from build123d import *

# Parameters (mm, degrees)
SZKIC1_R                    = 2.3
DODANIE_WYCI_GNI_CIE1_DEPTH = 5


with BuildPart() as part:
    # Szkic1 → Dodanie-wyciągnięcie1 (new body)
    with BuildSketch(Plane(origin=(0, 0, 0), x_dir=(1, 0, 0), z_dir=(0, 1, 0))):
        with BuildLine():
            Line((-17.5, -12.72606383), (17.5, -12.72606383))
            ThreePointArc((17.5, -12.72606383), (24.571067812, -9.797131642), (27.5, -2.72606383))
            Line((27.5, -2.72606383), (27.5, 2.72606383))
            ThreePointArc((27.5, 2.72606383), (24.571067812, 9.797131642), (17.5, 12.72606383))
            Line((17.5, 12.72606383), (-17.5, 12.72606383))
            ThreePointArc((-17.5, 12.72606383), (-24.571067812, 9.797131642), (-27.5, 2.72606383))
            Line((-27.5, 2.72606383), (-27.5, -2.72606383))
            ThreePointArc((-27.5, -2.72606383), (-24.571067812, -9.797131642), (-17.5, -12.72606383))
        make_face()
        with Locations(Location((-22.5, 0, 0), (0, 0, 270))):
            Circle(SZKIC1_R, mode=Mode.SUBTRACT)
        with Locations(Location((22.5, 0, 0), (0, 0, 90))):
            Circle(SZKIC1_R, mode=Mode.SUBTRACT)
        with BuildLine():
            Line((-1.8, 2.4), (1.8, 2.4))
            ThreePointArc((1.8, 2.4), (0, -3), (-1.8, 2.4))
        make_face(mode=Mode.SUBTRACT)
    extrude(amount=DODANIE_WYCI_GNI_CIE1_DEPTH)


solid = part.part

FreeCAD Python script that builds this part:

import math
import FreeCAD as App
import Part
import Sketcher

V = App.Vector
Q = App.Units.Quantity

doc = App.newDocument("Part")
body = doc.addObject("PartDesign::Body", "Body")

# Sketch on XZ plane
sketch1 = doc.addObject("Sketcher::SketchObject", "Sketch")
body.addObject(sketch1)
sketch1.AttachmentSupport = (doc.XZ_Plane, [""])
sketch1.MapMode = "FlatFace"
sketch1.addGeometry([
    Part.LineSegment(V(-17.5, 12.726064, 0), V(17.5, 12.726064, 0)),  # 0
    Part.ArcOfCircle(Part.Circle(V(17.5, 2.726064, 0), V(0, 0, 1), 10), math.radians(0), math.radians(90)),  # 1
    Part.LineSegment(V(27.5, 2.726064, 0), V(27.5, -2.726064, 0)),  # 2
    Part.ArcOfCircle(Part.Circle(V(17.5, -2.726064, 0), V(0, 0, 1), 10), math.radians(-90), math.radians(0)),  # 3
    Part.LineSegment(V(17.5, -12.726064, 0), V(-17.5, -12.726064, 0)),  # 4
    Part.ArcOfCircle(Part.Circle(V(-17.5, -2.726064, 0), V(0, 0, 1), 10), math.radians(180), math.radians(270)),  # 5
    Part.LineSegment(V(-27.5, -2.726064, 0), V(-27.5, 2.726064, 0)),  # 6
    Part.ArcOfCircle(Part.Circle(V(-17.5, 2.726064, 0), V(0, 0, 1), 10), math.radians(90), math.radians(180)),  # 7
    Part.Circle(V(-22.5, 0, 0), V(0, 0, 1), 2.3),  # 8
    Part.ArcOfCircle(Part.Circle(V(0, 0, 0), V(0, 0, 1), 3), math.radians(-53.130102), math.radians(233.130102)),  # 9
    Part.LineSegment(V(-1.8, -2.4, 0), V(1.8, -2.4, 0)),  # 10
    Part.Circle(V(22.5, 0, 0), V(0, 0, 1), 2.3),  # 11
], False)
sketch1.addConstraint([
    Sketcher.Constraint("Tangent", 0, 2, 1, 2),
    Sketcher.Constraint("Tangent", 1, 1, 2, 1),
    Sketcher.Constraint("Tangent", 2, 2, 3, 2),
    Sketcher.Constraint("Tangent", 3, 1, 4, 1),
    Sketcher.Constraint("Tangent", 4, 2, 5, 2),
    Sketcher.Constraint("Tangent", 5, 1, 6, 1),
    Sketcher.Constraint("Tangent", 6, 2, 7, 2),
    Sketcher.Constraint("Tangent", 7, 1, 0, 1),
    Sketcher.Constraint("Coincident", 9, 1, 10, 2),
    Sketcher.Constraint("Coincident", 10, 1, 9, 2),
    Sketcher.Constraint("Horizontal", 0),
    Sketcher.Constraint("Vertical", 2),
    Sketcher.Constraint("Horizontal", 4),
    Sketcher.Constraint("Vertical", 6),
    Sketcher.Constraint("Horizontal", 10),
    Sketcher.Constraint("Coincident", 9, 3, -1, 1),
    Sketcher.Constraint("Equal", 1, 3),
    Sketcher.Constraint("Equal", 3, 5),
    Sketcher.Constraint("Equal", 5, 7),
    Sketcher.Constraint("Equal", 8, 11),
    Sketcher.Constraint("Symmetric", 1, 3, 5, 3, -1, 1),
    Sketcher.Constraint("Symmetric", 8, 3, 11, 3, -1, 1),
    Sketcher.Constraint("PointOnObject", 8, 3, -1),
    Sketcher.Constraint("Radius", 1, Q("10 mm")),
    Sketcher.Constraint("Radius", 9, Q("3 mm")),
    Sketcher.Constraint("Diameter", 8, Q("4.6 mm")),
    Sketcher.Constraint("DistanceX", 0, 1, 0, 2, Q("35 mm")),
    Sketcher.Constraint("DistanceX", 10, 1, 10, 2, Q("3.6 mm")),
    Sketcher.Constraint("DistanceX", 8, 3, 5, 3, Q("5 mm")),
    Sketcher.Constraint("DistanceY", 2, 2, 2, 1, Q("5.452128 mm")),
])
pad1 = doc.addObject("PartDesign::Pad", "Pad")
body.addObject(pad1)
pad1.Profile = sketch1
pad1.Length = 5
pad1.Reversed = True

doc.recompute()
